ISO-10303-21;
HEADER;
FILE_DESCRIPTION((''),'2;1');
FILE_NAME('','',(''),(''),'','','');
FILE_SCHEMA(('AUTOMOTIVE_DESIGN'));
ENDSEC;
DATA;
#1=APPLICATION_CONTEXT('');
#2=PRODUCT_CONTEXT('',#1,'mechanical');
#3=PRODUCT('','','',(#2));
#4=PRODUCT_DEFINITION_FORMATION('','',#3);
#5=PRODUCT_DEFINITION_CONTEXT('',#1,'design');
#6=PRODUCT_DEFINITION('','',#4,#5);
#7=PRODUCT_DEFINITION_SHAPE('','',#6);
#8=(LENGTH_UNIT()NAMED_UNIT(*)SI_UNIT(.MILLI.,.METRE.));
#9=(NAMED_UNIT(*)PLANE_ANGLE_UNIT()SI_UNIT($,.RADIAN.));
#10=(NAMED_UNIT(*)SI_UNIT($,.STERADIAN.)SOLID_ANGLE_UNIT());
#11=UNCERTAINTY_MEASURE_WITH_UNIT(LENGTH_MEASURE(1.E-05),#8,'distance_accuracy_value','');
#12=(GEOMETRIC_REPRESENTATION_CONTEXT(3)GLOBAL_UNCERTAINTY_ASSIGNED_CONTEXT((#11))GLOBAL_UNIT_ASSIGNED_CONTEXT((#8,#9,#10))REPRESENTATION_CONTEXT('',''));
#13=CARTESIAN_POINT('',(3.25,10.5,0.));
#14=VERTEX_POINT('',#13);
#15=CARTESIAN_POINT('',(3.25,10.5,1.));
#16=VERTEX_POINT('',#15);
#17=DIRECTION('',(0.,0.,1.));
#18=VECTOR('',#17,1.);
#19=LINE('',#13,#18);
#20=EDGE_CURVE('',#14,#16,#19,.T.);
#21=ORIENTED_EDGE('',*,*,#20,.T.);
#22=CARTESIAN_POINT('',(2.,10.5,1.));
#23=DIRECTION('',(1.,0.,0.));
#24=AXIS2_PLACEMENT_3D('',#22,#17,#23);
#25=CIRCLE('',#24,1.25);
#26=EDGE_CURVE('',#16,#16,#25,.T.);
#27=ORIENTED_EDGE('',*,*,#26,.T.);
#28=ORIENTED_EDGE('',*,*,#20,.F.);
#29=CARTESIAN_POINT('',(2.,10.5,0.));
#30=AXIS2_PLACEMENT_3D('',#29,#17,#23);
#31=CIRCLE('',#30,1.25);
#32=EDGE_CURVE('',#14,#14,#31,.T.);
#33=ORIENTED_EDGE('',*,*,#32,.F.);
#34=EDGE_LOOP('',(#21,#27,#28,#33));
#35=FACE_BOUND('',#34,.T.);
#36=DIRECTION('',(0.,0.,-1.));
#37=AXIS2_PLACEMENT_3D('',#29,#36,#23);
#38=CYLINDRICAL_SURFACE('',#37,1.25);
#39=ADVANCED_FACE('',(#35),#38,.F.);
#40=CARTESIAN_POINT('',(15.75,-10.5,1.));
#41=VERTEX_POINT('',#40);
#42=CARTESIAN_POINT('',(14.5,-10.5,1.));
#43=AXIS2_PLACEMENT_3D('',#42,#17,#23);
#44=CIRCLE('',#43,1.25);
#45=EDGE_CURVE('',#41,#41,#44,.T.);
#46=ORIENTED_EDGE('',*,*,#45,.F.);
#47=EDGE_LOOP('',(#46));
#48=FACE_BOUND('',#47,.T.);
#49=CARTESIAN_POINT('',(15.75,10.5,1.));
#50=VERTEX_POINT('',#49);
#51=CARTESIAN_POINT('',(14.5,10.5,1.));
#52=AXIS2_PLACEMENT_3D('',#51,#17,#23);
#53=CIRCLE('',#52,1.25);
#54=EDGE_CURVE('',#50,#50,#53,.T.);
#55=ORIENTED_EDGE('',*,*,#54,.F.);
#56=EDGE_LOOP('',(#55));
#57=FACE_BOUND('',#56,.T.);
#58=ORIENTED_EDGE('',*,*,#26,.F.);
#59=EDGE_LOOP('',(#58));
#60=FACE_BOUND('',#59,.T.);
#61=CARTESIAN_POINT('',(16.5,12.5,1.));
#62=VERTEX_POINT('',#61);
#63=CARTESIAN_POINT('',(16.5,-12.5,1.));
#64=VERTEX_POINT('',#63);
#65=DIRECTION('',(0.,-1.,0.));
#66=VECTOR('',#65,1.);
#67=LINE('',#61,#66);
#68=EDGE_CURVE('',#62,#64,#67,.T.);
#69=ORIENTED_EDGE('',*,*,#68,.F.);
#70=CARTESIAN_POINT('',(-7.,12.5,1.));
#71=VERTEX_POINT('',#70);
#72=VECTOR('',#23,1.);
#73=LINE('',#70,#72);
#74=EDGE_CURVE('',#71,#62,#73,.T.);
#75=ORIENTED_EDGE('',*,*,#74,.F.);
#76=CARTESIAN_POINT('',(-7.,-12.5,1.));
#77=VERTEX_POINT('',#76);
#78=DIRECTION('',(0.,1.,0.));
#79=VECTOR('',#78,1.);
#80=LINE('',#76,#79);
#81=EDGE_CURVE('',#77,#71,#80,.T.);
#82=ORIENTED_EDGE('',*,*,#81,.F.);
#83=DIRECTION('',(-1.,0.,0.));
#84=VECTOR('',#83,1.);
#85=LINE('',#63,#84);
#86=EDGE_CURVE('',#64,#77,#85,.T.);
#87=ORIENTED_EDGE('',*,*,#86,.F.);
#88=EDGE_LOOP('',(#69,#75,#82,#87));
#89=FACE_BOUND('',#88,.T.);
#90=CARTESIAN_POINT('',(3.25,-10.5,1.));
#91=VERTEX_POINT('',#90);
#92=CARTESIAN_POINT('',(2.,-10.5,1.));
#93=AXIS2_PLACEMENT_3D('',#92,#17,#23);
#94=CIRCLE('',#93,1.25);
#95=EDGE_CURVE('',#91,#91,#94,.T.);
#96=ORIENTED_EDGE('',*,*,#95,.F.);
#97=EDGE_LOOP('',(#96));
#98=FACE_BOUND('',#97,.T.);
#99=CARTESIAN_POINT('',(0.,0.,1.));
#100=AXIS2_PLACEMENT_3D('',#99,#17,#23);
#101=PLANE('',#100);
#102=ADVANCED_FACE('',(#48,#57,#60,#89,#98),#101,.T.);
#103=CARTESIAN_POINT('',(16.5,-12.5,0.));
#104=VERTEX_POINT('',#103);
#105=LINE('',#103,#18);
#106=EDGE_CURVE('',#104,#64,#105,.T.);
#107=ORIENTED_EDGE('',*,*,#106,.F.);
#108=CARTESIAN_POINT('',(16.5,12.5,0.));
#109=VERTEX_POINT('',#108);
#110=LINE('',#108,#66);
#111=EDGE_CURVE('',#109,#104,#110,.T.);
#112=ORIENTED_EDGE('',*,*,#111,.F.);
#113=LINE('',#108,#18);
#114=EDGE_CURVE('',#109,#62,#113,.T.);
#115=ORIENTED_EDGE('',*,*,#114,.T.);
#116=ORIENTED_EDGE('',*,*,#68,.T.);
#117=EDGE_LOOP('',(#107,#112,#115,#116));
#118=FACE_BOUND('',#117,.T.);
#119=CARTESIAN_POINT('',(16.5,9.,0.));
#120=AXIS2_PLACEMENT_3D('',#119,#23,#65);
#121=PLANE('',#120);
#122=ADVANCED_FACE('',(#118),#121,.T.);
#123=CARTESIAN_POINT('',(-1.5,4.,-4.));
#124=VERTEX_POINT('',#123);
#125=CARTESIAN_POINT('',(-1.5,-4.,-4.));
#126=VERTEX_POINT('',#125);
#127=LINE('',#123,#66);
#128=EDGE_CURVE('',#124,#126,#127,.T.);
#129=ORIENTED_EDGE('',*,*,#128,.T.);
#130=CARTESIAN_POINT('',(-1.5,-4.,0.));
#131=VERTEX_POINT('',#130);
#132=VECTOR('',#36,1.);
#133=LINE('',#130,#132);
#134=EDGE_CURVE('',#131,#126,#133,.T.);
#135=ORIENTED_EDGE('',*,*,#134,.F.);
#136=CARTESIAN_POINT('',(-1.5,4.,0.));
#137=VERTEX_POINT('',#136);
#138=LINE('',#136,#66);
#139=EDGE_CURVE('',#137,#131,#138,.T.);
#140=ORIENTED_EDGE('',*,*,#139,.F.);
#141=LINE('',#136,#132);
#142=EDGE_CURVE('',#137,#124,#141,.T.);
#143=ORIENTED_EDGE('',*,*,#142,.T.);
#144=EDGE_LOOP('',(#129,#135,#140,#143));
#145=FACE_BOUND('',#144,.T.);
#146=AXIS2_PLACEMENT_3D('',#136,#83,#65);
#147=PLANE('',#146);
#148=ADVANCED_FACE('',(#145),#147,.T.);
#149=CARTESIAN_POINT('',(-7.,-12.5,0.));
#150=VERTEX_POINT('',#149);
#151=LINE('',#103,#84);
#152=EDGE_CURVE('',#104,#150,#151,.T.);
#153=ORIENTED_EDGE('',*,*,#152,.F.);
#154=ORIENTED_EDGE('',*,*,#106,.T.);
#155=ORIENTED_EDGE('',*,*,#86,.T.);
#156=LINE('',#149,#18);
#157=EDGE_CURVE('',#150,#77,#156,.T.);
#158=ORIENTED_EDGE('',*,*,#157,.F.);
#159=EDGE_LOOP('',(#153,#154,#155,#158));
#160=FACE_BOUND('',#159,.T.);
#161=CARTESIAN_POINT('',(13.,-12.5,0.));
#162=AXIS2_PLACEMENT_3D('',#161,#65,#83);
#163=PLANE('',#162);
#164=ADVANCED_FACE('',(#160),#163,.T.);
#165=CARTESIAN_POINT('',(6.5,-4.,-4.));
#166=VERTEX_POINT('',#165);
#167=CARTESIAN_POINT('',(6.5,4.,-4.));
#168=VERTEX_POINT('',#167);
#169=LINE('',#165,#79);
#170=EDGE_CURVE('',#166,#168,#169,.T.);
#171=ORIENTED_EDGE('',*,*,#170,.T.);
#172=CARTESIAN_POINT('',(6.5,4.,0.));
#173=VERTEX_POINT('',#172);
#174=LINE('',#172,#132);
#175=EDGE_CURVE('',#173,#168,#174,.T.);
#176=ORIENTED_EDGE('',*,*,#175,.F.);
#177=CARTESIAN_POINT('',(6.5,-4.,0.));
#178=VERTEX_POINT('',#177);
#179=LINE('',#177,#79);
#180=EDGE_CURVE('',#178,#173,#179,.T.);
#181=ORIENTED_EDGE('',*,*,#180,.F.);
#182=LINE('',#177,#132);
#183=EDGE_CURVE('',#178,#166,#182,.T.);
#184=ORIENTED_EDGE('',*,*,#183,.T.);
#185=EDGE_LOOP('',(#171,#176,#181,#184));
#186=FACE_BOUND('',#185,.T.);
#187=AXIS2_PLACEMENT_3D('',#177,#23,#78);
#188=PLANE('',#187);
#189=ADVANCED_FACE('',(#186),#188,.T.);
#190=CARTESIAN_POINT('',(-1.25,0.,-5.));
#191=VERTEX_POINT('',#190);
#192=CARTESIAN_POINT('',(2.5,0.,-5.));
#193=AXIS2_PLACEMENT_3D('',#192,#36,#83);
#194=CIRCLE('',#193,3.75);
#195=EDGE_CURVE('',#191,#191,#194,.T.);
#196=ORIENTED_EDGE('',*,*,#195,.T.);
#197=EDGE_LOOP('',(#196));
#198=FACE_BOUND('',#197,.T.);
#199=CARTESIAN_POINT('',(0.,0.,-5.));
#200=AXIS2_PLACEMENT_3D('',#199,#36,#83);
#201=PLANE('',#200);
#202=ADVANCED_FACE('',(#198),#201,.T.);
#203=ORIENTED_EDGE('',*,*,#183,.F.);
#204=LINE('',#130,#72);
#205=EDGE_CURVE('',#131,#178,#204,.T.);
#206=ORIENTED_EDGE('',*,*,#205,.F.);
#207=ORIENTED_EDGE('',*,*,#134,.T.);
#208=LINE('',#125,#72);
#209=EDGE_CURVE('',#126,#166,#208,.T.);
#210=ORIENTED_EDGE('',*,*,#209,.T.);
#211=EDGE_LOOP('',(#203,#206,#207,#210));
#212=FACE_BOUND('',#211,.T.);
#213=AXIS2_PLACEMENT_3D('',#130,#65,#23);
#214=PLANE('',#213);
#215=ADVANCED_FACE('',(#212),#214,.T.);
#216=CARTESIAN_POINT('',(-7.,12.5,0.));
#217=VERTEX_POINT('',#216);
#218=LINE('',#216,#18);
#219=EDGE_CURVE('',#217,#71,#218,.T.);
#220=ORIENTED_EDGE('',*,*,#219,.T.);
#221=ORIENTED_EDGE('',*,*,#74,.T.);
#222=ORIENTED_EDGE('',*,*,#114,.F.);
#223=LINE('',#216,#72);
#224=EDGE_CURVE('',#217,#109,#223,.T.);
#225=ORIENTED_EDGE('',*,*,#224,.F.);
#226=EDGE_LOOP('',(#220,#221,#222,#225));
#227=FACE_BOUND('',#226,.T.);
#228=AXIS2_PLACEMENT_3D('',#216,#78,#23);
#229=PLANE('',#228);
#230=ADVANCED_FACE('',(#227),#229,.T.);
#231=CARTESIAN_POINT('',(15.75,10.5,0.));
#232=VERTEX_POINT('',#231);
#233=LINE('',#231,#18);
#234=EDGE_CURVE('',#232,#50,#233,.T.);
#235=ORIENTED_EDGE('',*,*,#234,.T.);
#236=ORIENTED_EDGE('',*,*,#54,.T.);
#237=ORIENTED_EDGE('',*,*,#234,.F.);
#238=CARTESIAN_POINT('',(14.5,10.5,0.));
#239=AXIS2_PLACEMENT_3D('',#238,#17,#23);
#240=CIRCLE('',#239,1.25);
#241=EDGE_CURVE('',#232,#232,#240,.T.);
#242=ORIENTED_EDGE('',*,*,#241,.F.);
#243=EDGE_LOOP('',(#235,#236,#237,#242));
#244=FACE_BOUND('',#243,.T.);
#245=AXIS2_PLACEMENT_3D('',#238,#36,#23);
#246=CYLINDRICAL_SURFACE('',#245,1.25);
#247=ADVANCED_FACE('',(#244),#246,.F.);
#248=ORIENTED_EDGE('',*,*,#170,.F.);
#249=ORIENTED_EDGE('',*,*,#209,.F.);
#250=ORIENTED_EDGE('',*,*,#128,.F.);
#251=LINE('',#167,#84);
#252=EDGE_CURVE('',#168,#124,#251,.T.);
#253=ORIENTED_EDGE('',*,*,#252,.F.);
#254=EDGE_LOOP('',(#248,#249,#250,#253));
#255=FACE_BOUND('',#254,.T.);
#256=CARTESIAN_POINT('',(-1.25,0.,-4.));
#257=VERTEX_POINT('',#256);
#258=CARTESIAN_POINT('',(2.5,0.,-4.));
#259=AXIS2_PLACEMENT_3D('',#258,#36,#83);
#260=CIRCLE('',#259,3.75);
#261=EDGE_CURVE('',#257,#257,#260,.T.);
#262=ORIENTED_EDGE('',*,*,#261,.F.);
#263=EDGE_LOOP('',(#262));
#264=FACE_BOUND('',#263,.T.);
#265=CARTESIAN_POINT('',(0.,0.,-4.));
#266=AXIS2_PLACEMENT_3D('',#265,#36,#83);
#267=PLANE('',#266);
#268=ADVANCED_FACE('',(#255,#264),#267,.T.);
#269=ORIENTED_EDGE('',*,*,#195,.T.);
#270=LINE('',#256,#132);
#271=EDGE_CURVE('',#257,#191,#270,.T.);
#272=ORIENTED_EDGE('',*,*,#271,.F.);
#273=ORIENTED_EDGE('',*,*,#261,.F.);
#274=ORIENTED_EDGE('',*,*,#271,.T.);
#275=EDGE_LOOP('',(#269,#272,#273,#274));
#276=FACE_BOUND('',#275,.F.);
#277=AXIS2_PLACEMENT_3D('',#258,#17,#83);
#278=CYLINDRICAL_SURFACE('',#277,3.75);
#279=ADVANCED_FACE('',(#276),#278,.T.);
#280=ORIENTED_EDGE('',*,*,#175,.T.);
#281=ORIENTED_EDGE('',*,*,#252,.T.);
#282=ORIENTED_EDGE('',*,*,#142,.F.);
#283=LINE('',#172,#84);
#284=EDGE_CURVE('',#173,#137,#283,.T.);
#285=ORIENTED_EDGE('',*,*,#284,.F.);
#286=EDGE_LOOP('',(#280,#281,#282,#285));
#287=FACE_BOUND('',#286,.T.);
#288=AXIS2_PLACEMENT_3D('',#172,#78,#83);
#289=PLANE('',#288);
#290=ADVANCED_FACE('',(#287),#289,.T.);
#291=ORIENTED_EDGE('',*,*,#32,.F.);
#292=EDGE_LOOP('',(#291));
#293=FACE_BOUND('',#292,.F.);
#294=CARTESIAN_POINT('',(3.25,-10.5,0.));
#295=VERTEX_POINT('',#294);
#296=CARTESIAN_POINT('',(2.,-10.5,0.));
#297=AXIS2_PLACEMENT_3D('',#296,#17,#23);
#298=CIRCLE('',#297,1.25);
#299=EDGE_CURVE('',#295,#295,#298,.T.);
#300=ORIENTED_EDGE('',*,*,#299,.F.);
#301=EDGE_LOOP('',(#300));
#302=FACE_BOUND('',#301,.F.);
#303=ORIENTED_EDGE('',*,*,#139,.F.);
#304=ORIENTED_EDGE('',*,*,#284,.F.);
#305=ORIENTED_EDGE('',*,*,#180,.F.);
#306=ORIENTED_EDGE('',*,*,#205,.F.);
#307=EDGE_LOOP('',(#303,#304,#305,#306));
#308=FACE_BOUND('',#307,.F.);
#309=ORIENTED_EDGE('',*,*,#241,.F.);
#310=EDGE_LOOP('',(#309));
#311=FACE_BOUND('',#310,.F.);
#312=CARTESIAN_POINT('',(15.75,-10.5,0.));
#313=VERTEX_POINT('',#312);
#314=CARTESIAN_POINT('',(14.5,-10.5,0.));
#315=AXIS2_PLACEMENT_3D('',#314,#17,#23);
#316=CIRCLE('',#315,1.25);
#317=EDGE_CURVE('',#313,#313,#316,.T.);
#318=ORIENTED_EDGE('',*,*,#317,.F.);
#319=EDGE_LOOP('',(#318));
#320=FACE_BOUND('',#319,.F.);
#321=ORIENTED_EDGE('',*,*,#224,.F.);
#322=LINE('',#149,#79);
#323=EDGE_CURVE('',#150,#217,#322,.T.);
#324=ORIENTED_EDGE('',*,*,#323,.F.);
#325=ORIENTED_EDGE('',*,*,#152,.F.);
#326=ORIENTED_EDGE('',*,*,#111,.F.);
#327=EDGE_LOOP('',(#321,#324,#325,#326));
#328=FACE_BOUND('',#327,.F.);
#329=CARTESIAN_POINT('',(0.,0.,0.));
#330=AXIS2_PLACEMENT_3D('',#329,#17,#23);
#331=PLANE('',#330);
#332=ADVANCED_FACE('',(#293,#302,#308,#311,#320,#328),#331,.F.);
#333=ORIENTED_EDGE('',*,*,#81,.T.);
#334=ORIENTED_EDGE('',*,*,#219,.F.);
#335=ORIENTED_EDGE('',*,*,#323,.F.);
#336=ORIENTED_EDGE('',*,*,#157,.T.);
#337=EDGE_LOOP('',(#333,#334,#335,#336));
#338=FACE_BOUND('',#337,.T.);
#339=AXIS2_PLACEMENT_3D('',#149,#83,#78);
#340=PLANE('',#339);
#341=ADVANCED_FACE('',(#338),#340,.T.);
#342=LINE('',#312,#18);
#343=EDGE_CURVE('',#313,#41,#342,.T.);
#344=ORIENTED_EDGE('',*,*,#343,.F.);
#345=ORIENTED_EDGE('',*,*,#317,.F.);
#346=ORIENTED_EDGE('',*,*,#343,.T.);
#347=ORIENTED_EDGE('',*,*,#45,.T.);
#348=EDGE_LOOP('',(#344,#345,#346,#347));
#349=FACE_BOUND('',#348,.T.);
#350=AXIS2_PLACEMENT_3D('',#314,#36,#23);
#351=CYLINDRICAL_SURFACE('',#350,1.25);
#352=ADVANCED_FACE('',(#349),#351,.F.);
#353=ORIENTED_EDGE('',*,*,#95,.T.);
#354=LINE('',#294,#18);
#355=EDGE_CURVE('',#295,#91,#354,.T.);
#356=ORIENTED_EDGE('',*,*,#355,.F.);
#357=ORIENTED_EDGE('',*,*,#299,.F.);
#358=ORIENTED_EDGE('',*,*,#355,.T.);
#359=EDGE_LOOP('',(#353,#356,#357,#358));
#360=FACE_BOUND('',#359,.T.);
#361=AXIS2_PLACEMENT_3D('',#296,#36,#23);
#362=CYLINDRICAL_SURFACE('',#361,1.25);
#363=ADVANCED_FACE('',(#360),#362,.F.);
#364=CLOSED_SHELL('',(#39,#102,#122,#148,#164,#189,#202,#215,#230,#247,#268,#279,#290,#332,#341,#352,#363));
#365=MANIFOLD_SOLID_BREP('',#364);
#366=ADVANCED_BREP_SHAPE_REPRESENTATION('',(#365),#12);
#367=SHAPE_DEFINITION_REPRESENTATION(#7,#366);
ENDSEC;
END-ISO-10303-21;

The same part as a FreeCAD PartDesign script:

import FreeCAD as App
import Part
import Sketcher
from FreeCAD import Vector


def add_polygon(sketch, points):
    """Adds a closed chain of lines whose ends are joined by coincident constraints."""
    first, n = sketch.GeometryCount, len(points)
    for a, b in zip(points, points[1:] + points[:1]):
        sketch.addGeometry(Part.LineSegment(App.Vector(*a, 0), App.Vector(*b, 0)), False)
    for i in range(n):
        sketch.addConstraint(Sketcher.Constraint("Coincident", first + i, 2, first + (i + 1) % n, 1))

doc = App.newDocument("Part")
body = doc.addObject("PartDesign::Body", "Body")

# Sketch on XY plane
sketch1 = body.newObject("Sketcher::SketchObject", "Sketch")
sketch1.AttachmentSupport = (doc.getObject("XY_Plane"), [""])
sketch1.MapMode = "FlatFace"
add_polygon(sketch1, [(16.5, 12.5), (-7, 12.5), (-7, -12.5), (16.5, -12.5)])  # lines 0-3
sketch1.addGeometry(Part.Circle(Vector(14.5, -10.5, 0), Vector(0, 0, 1), 1.2), False)  # 4
sketch1.addGeometry(Part.Circle(Vector(2, -10.5, 0), Vector(0, 0, 1), 1.2), False)  # 5
sketch1.addGeometry(Part.Circle(Vector(2, 10.5, 0), Vector(0, 0, 1), 1.2), False)  # 6
sketch1.addGeometry(Part.Circle(Vector(14.5, 10.5, 0), Vector(0, 0, 1), 1.2), False)  # 7
sketch1.addConstraint([
    Sketcher.Constraint("Horizontal", 0),
    Sketcher.Constraint("Vertical", 1),
    Sketcher.Constraint("Horizontal", 2),
    Sketcher.Constraint("Vertical", 3),
    Sketcher.Constraint("Equal", 4, 5),
    Sketcher.Constraint("Equal", 5, 6),
    Sketcher.Constraint("Equal", 6, 7),
    Sketcher.Constraint("Symmetric", 5, 3, 6, 3, -1),
    Sketcher.Constraint("Symmetric", 4, 3, 7, 3, -1),
    Sketcher.Constraint("Horizontal", 4, 3, 5, 3),
    Sketcher.Constraint("Diameter", 4, 2.5),
    Sketcher.Constraint("DistanceX", -1, 1, 5, 3, 2.0),
    Sketcher.Constraint("DistanceX", 0, 2, 6, 3, 9.0),
    Sketcher.Constraint("DistanceY", 6, 3, 0, 2, 2.0),
    Sketcher.Constraint("DistanceY", 1, 2, 5, 3, 2.0),
    Sketcher.Constraint("DistanceX", 4, 3, 2, 2, 2.0),
    Sketcher.Constraint("DistanceY", 1, 2, 1, 1, 25.0),
    Sketcher.Constraint("DistanceX", 0, 2, 0, 1, 23.5),
])
pad1 = body.newObject("PartDesign::Pad", "Pad")
pad1.Profile = sketch1
pad1.Length = 1

# Sketch on XY plane
sketch2 = body.newObject("Sketcher::SketchObject", "Sketch001")
sketch2.AttachmentSupport = (doc.getObject("XY_Plane"), [""])
sketch2.MapMode = "FlatFace"
add_polygon(sketch2, [(-2, 4), (6, 4), (6, -4), (-2, -4)])  # lines 0-3
sketch2.addConstraint([
    Sketcher.Constraint("Horizontal", 0),
    Sketcher.Constraint("Vertical", 1),
    Sketcher.Constraint("Horizontal", 2),
    Sketcher.Constraint("Vertical", 3),
    Sketcher.Constraint("Equal", 2, 1),
    Sketcher.Constraint("DistanceX", 0, 1, 0, 2, 8.0),
    Sketcher.Constraint("DistanceY", -1, 1, 0, 2, 4.0),
    Sketcher.Constraint("DistanceX", -1, 1, 0, 2, 6.5),
])
pad2 = body.newObject("PartDesign::Pad", "Pad001")
pad2.Profile = sketch2
pad2.Length = 4
pad2.Reversed = True

# Sketch on XY plane
sketch3 = body.newObject("Sketcher::SketchObject", "Sketch002")
sketch3.AttachmentSupport = (doc.getObject("XY_Plane"), [""])
sketch3.MapMode = "FlatFace"
sketch3.AttachmentOffset = App.Placement(Vector(0, 0, -4), App.Rotation())
sketch3.addGeometry(Part.Circle(Vector(2.5, 0, 0), Vector(0, 0, 1), 3.8), False)
sketch3.addConstraint([
    Sketcher.Constraint("PointOnObject", 0, 3, -1),
    Sketcher.Constraint("Diameter", 0, 7.5),
    Sketcher.Constraint("DistanceX", -1, 1, 0, 3, 2.5),
])
pad3 = body.newObject("PartDesign::Pad", "Pad002")
pad3.Profile = sketch3
pad3.Length = 1
pad3.Reversed = True

doc.recompute()
